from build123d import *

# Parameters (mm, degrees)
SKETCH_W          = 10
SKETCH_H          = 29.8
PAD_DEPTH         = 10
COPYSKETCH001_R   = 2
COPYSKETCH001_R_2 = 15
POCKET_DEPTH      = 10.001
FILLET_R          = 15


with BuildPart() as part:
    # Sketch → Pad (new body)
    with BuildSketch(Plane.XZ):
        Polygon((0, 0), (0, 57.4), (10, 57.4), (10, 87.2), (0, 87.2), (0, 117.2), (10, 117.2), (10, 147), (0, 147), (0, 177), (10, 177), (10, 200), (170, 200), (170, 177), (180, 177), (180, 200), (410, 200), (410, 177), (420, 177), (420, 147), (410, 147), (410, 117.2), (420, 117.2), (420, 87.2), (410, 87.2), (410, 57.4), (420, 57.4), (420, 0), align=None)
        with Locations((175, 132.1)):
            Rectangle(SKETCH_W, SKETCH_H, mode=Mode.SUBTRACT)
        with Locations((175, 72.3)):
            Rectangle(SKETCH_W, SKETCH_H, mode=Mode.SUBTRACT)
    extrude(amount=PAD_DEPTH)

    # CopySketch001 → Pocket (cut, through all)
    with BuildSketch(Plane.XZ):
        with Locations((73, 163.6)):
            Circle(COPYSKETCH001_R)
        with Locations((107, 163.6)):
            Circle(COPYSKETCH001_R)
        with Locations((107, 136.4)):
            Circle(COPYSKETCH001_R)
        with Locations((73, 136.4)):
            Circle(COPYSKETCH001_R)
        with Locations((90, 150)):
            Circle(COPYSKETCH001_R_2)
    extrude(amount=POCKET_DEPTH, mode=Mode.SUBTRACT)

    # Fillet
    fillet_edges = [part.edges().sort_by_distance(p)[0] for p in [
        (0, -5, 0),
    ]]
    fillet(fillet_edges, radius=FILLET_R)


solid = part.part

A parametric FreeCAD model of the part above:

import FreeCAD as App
import Part
import Sketcher

V = App.Vector


def edges_at(feature, points):
    """Names of the edges that pass closest to the given points."""
    edges = feature.Shape.Edges
    near = lambda p: min(range(len(edges)), key=lambda i: edges[i].distToShape(Part.Vertex(*p))[0])
    return sorted({f"Edge{near(p) + 1}" for p in points})

doc = App.newDocument("Part")
body = doc.addObject("PartDesign::Body", "Body")

sketch1 = body.newObject("Sketcher::SketchObject", "Sketch")
sketch1.AttachmentSupport = (doc.getObject("XZ_Plane"), [""])
sketch1.MapMode = "FlatFace"
sketch1.addGeometry([
    Part.LineSegment(V(0, 57, 0), V(0, 0, 0)),
    Part.LineSegment(V(0, 0, 0), V(420, 0, 0)),
    Part.LineSegment(V(420, 0, 0), V(420, 57, 0)),
    Part.LineSegment(V(420, 57, 0), V(410, 57, 0)),
    Part.LineSegment(V(410, 57, 0), V(410, 87, 0)),
    Part.LineSegment(V(410, 87, 0), V(420, 87, 0)),
    Part.LineSegment(V(420, 87, 0), V(420, 117, 0)),
    Part.LineSegment(V(420, 117, 0), V(410, 117, 0)),
    Part.LineSegment(V(410, 117, 0), V(410, 147, 0)),
    Part.LineSegment(V(410, 147, 0), V(420, 147, 0)),
    Part.LineSegment(V(420, 147, 0), V(420, 177, 0)),
    Part.LineSegment(V(420, 177, 0), V(410, 177, 0)),
    Part.LineSegment(V(410, 177, 0), V(410, 200, 0)),
    Part.LineSegment(V(410, 200, 0), V(180, 200, 0)),
    Part.LineSegment(V(180, 200, 0), V(180, 177, 0)),
    Part.LineSegment(V(180, 177, 0), V(170, 177, 0)),
    Part.LineSegment(V(170, 177, 0), V(170, 200, 0)),
    Part.LineSegment(V(170, 200, 0), V(10, 200, 0)),
    Part.LineSegment(V(10, 200, 0), V(10, 177, 0)),
    Part.LineSegment(V(10, 177, 0), V(0, 177, 0)),
    Part.LineSegment(V(0, 177, 0), V(0, 147, 0)),
    Part.LineSegment(V(0, 147, 0), V(10, 147, 0)),
    Part.LineSegment(V(10, 147, 0), V(10, 117, 0)),
    Part.LineSegment(V(10, 117, 0), V(0, 117, 0)),
    Part.LineSegment(V(0, 117, 0), V(0, 87, 0)),
    Part.LineSegment(V(0, 87, 0), V(10, 87, 0)),
    Part.LineSegment(V(10, 87, 0), V(10, 57, 0)),
    Part.LineSegment(V(10, 57, 0), V(0, 57, 0)),
    Part.LineSegment(V(170, 57, 0), V(170, 87, 0)),
    Part.LineSegment(V(170, 87, 0), V(180, 87, 0)),
    Part.LineSegment(V(180, 87, 0), V(180, 57, 0)),
    Part.LineSegment(V(180, 57, 0), V(170, 57, 0)),
    Part.LineSegment(V(170, 117, 0), V(170, 147, 0)),
    Part.LineSegment(V(170, 147, 0), V(180, 147, 0)),
    Part.LineSegment(V(180, 147, 0), V(180, 117, 0)),
    Part.LineSegment(V(180, 117, 0), V(170, 117, 0)),
], False)
sketch1.addConstraint([
    Sketcher.Constraint("Coincident", 0, 2, 1, 1),
    Sketcher.Constraint("Coincident", 1, 2, 2, 1),
    Sketcher.Constraint("Coincident", 2, 2, 3, 1),
    Sketcher.Constraint("Coincident", 3, 2, 4, 1),
    Sketcher.Constraint("Coincident", 4, 2, 5, 1),
    Sketcher.Constraint("Coincident", 5, 2, 6, 1),
    Sketcher.Constraint("Coincident", 6, 2, 7, 1),
    Sketcher.Constraint("Coincident", 7, 2, 8, 1),
    Sketcher.Constraint("Coincident", 8, 2, 9, 1),
    Sketcher.Constraint("Coincident", 9, 2, 10, 1),
    Sketcher.Constraint("Coincident", 10, 2, 11, 1),
    Sketcher.Constraint("Coincident", 11, 2, 12, 1),
    Sketcher.Constraint("Coincident", 12, 2, 13, 1),
    Sketcher.Constraint("Coincident", 13, 2, 14, 1),
    Sketcher.Constraint("Coincident", 14, 2, 15, 1),
    Sketcher.Constraint("Coincident", 15, 2, 16, 1),
    Sketcher.Constraint("Coincident", 16, 2, 17, 1),
    Sketcher.Constraint("Coincident", 17, 2, 18, 1),
    Sketcher.Constraint("Coincident", 18, 2, 19, 1),
    Sketcher.Constraint("Coincident", 19, 2, 20, 1),
    Sketcher.Constraint("Coincident", 20, 2, 21, 1),
    Sketcher.Constraint("Coincident", 21, 2, 22, 1),
    Sketcher.Constraint("Coincident", 22, 2, 23, 1),
    Sketcher.Constraint("Coincident", 23, 2, 24, 1),
    Sketcher.Constraint("Coincident", 24, 2, 25, 1),
    Sketcher.Constraint("Coincident", 25, 2, 26, 1),
    Sketcher.Constraint("Coincident", 26, 2, 27, 1),
    Sketcher.Constraint("Coincident", 27, 2, 0, 1),
    Sketcher.Constraint("Coincident", 28, 2, 29, 1),
    Sketcher.Constraint("Coincident", 29, 2, 30, 1),
    Sketcher.Constraint("Coincident", 30, 2, 31, 1),
    Sketcher.Constraint("Coincident", 31, 2, 28, 1),
    Sketcher.Constraint("Coincident", 32, 2, 33, 1),
    Sketcher.Constraint("Coincident", 33, 2, 34, 1),
    Sketcher.Constraint("Coincident", 34, 2, 35, 1),
    Sketcher.Constraint("Coincident", 35, 2, 32, 1),
    Sketcher.Constraint("Vertical", 0),
    Sketcher.Constraint("Horizontal", 1),
    Sketcher.Constraint("Vertical", 2),
    Sketcher.Constraint("Horizontal", 3),
    Sketcher.Constraint("Vertical", 4),
    Sketcher.Constraint("Horizontal", 5),
    Sketcher.Constraint("Vertical", 6),
    Sketcher.Constraint("Horizontal", 7),
    Sketcher.Constraint("Vertical", 8),
    Sketcher.Constraint("Horizontal", 9),
    Sketcher.Constraint("Vertical", 10),
    Sketcher.Constraint("Horizontal", 11),
    Sketcher.Constraint("Vertical", 12),
    Sketcher.Constraint("Horizontal", 13),
    Sketcher.Constraint("Vertical", 14),
    Sketcher.Constraint("Horizontal", 15),
    Sketcher.Constraint("Vertical", 16),
    Sketcher.Constraint("Horizontal", 17),
    Sketcher.Constraint("Vertical", 18),
    Sketcher.Constraint("Horizontal", 19),
    Sketcher.Constraint("Vertical", 20),
    Sketcher.Constraint("Horizontal", 21),
    Sketcher.Constraint("Vertical", 22),
    Sketcher.Constraint("Horizontal", 23),
    Sketcher.Constraint("Vertical", 24),
    Sketcher.Constraint("Horizontal", 25),
    Sketcher.Constraint("Vertical", 26),
    Sketcher.Constraint("Horizontal", 27),
    Sketcher.Constraint("Vertical", 28),
    Sketcher.Constraint("Horizontal", 29),
    Sketcher.Constraint("Vertical", 30),
    Sketcher.Constraint("Horizontal", 31),
    Sketcher.Constraint("Vertical", 32),
    Sketcher.Constraint("Horizontal", 33),
    Sketcher.Constraint("Vertical", 34),
    Sketcher.Constraint("Horizontal", 35),
    Sketcher.Constraint("Coincident", 0, 2, -1, 1),
    Sketcher.Constraint("PointOnObject", 19, 2, -2),
    Sketcher.Constraint("PointOnObject", 23, 2, -2),
    Sketcher.Constraint("Horizontal", 11, 2, 14, 2),
    Sketcher.Constraint("Horizontal", 13, 2, 16, 2),
    Sketcher.Constraint("Horizontal", 15, 2, 18, 2),
    Sketcher.Constraint("Horizontal", 9, 2, 20, 2),
    Sketcher.Constraint("Horizontal", 7, 2, 22, 2),
    Sketcher.Constraint("Horizontal", 5, 2, 24, 2),
    Sketcher.Constraint("Horizontal", 3, 2, 26, 2),
    Sketcher.Constraint("Horizontal", 25, 2, 28, 2),
    Sketcher.Constraint("Horizontal", 27, 2, 30, 2),
    Sketcher.Constraint("Horizontal", 21, 2, 32, 2),
    Sketcher.Constraint("Horizontal", 23, 2, 34, 2),
    Sketcher.Constraint("Vertical", 2, 2, 5, 2),
    Sketcher.Constraint("Vertical", 4, 2, 7, 2),
    Sketcher.Constraint("Vertical", 6, 2, 9, 2),
    Sketcher.Constraint("Vertical", 8, 2, 11, 2),
    Sketcher.Constraint("Vertical", 18, 2, 21, 2),
    Sketcher.Constraint("Vertical", 22, 2, 25, 2),
    Sketcher.Constraint("Vertical", 16, 2, 28, 2),
    Sketcher.Constraint("Vertical", 14, 2, 29, 2),
    Sketcher.Constraint("Vertical", 31, 2, 32, 2),
    Sketcher.Constraint("Vertical", 30, 2, 33, 2),
    Sketcher.Constraint("Equal", 11, 15),
    Sketcher.Constraint("Equal", 15, 19),
    Sketcher.Constraint("Equal", 4, 8),
    Sketcher.Constraint("Equal", 6, 10),
    Sketcher.Constraint("DistanceX", 1, 1, 1, 2, 420.0),
    Sketcher.Constraint("DistanceX", 3, 2, 3, 1, 10.0),
    Sketcher.Constraint("DistanceX", 13, 2, 13, 1, 230.0),
    Sketcher.Constraint("DistanceY", 6, 1, 6, 2, 30.0),
    Sketcher.Constraint("DistanceY", 12, 1, 12, 2, 23.0),
    Sketcher.Constraint("DistanceY", 0, 2, 0, 1, 57.4),
    Sketcher.Constraint("DistanceY", 4, 1, 4, 2, 29.8),
])
pad1 = body.newObject("PartDesign::Pad", "Pad")
pad1.Profile = sketch1
pad1.Length = 10

sketch2 = body.newObject("Sketcher::SketchObject", "Sketch001")
sketch2.AttachmentSupport = (doc.getObject("XZ_Plane"), [""])
sketch2.MapMode = "FlatFace"
sketch2.addGeometry([
    Part.Circle(V(73, 163.6, 0), V(0, 0, 1), 2),
    Part.Circle(V(107, 163.6, 0), V(0, 0, 1), 2),
    Part.Circle(V(107, 136.4, 0), V(0, 0, 1), 2),
    Part.Circle(V(73, 136.4, 0), V(0, 0, 1), 2),
    Part.Circle(V(90, 150, 0), V(0, 0, 1), 15),
], False)
sketch2.addConstraint([
    Sketcher.Constraint("Equal", 0, 1),
    Sketcher.Constraint("Equal", 1, 2),
    Sketcher.Constraint("Equal", 2, 3),
    Sketcher.Constraint("Horizontal", 0, 3, 1, 3),
    Sketcher.Constraint("Horizontal", 2, 3, 3, 3),
    Sketcher.Constraint("Vertical", 1, 3, 2, 3),
    Sketcher.Constraint("Vertical", 0, 3, 3, 3),
    Sketcher.Constraint("Diameter", 0, 4.0),
    Sketcher.Constraint("Diameter", 4, 30.0),
    Sketcher.Constraint("DistanceX", -1, 1, 0, 3, 73.0),
    Sketcher.Constraint("DistanceX", -1, 1, 1, 3, 107.0),
    Sketcher.Constraint("DistanceX", -1, 1, 4, 3, 90.0),
    Sketcher.Constraint("DistanceY", -1, 1, 4, 3, 150.0),
    Sketcher.Constraint("DistanceY", -1, 1, 0, 3, 163.6),
    Sketcher.Constraint("DistanceY", -1, 1, 2, 3, 136.4),
])
pocket1 = body.newObject("PartDesign::Pocket", "Pocket")
pocket1.Profile = sketch2
pocket1.Type = "ThroughAll"
pocket1.Reversed = True
doc.recompute()

fillet = body.newObject("PartDesign::Fillet", "Fillet")
fillet.Base = (pocket1, edges_at(pocket1, [(0, -5, 0)]))
fillet.Radius = 15

doc.recompute()
